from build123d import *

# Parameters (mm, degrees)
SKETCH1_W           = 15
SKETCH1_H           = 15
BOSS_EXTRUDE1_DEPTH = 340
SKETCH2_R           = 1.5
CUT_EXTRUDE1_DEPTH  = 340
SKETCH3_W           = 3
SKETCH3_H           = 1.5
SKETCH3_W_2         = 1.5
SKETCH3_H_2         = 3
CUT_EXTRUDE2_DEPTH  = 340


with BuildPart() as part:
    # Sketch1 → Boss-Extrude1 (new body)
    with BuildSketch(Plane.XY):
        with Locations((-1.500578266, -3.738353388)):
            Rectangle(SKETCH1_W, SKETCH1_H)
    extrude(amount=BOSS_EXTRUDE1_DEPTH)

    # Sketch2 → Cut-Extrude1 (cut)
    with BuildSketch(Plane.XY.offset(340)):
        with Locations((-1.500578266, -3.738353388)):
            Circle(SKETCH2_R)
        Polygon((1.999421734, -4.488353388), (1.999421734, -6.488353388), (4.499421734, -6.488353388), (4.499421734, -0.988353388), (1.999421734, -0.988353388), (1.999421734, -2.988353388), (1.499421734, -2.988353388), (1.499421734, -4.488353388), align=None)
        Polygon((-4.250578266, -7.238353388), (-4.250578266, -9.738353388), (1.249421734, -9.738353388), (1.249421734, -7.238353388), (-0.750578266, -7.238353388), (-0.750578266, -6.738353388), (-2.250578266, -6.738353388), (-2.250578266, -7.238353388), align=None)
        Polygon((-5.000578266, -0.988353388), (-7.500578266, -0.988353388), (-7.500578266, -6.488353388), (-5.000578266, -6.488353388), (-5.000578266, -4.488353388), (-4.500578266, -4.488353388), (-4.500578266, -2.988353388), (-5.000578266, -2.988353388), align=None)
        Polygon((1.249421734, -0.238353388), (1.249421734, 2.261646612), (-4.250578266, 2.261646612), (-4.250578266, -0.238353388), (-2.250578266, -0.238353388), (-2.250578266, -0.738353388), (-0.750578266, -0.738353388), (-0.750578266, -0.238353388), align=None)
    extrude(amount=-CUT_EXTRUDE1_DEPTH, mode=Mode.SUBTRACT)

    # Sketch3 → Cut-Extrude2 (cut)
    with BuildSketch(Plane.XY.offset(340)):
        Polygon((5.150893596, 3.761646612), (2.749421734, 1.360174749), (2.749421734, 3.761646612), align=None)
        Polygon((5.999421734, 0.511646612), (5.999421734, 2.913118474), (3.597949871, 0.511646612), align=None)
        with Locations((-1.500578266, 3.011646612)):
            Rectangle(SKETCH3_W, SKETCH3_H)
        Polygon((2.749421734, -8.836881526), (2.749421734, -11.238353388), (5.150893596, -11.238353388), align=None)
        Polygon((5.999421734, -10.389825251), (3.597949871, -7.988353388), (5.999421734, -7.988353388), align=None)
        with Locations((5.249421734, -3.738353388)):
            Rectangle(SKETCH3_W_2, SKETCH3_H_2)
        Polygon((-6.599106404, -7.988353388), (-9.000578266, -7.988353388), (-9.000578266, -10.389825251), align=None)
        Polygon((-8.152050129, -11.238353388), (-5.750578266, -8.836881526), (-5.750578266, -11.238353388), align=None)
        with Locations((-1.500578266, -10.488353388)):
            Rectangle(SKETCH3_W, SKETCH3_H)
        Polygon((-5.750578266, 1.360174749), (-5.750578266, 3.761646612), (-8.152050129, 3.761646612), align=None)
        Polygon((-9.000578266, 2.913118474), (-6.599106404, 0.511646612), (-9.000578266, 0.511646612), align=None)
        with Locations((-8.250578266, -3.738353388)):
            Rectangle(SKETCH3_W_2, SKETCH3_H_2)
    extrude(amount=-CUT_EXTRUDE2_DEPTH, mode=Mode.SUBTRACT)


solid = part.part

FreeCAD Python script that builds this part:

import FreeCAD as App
import Part
import Sketcher
Q = App.Units.Quantity


def add_polygon(sketch, points):
    """Adds a closed chain of lines whose ends are joined by coincident constraints."""
    first, n = sketch.GeometryCount, len(points)
    for a, b in zip(points, points[1:] + points[:1]):
        sketch.addGeometry(Part.LineSegment(App.Vector(*a, 0), App.Vector(*b, 0)), False)
    for i in range(n):
        sketch.addConstraint(Sketcher.Constraint("Coincident", first + i, 2, first + (i + 1) % n, 1))

doc = App.newDocument("Part")
params = doc.addObject("Spreadsheet::Sheet", "Params")
for row, (alias, value) in enumerate([
    ("sketch1_width", "15 mm"),
    ("pad1_length", "340 mm"),
    ("sketch2_diameter", "3 mm"),
    ("sketch2_width", "2 mm"),
    ("sketch2_width2", "2.5 mm"),
    ("sketch2_width3", "0.5 mm"),
    ("sketch2_width4", "5.5 mm"),
    ("pocket1_length", "340 mm"),
    ("sketch3_width", "3 mm"),
    ("sketch3_width2", "1.5 mm"),
    ("pocket2_length", "340 mm"),
], start=1):
    params.set(f"A{row}", alias)
    params.set(f"B{row}", "=" + value)
    params.setAlias(f"B{row}", alias)

body = doc.addObject("PartDesign::Body", "Body")

sketch1 = body.newObject("Sketcher::SketchObject", "Sketch")
sketch1.AttachmentSupport = (doc.getObject("XY_Plane"), [""])
sketch1.MapMode = "FlatFace"
add_polygon(sketch1, [(-9, 4), (-9, -11), (6, -11), (6, 4)])
sketch1.addConstraint(Sketcher.Constraint("Vertical", 0))
sketch1.addConstraint(Sketcher.Constraint("Horizontal", 1))
sketch1.addConstraint(Sketcher.Constraint("Vertical", 2))
sketch1.addConstraint(Sketcher.Constraint("Horizontal", 3))
sketch1.addConstraint(Sketcher.Constraint("Equal", 3, 0))
sketch1.addConstraint(Sketcher.Constraint("DistanceX", 1, 1, 1, 2, Q("15 mm")))
sketch1.addConstraint(Sketcher.Constraint("DistanceX", 0, 2, -1, 1, Q("9.000578 mm")))
sketch1.addConstraint(Sketcher.Constraint("DistanceY", 0, 2, -1, 1, Q("11.238353 mm")))
sketch1.setExpression("Constraints[9]", "Params.sketch1_width")
pad1 = body.newObject("PartDesign::Pad", "Pad")
pad1.Profile = sketch1
pad1.setExpression("Length", "Params.pad1_length")

sketch2 = body.newObject("Sketcher::SketchObject", "Sketch001")
sketch2.AttachmentSupport = (doc.getObject("XY_Plane"), [""])
sketch2.MapMode = "FlatFace"
sketch2.AttachmentOffset = App.Placement(App.Vector(0, 0, 340), App.Rotation())
sketch2.addGeometry(Part.Circle(App.Vector(-1.5, -3.7, 0), App.Vector(0, 0, 1), 1.5), False)
add_polygon(sketch2, [(2, -4.5), (2, -6.5), (4.5, -6.5), (4.5, -1), (2, -1), (2, -3), (1.5, -3), (1.5, -4.5)])
add_polygon(sketch2, [(-4.3, -7.2), (-4.3, -9.7), (1.2, -9.7), (1.2, -7.2), (-0.8, -7.2), (-0.8, -6.7), (-2.3, -6.7), (-2.3, -7.2)])
add_polygon(sketch2, [(-5, -1), (-7.5, -1), (-7.5, -6.5), (-5, -6.5), (-5, -4.5), (-4.5, -4.5), (-4.5, -3), (-5, -3)])
add_polygon(sketch2, [(1.2, -0.2), (1.2, 2.3), (-4.3, 2.3), (-4.3, -0.2), (-2.3, -0.2), (-2.3, -0.7), (-0.8, -0.7), (-0.8, -0.2)])
sketch2.addConstraint(Sketcher.Constraint("Vertical", 1))
sketch2.addConstraint(Sketcher.Constraint("Horizontal", 2))
sketch2.addConstraint(Sketcher.Constraint("Vertical", 3))
sketch2.addConstraint(Sketcher.Constraint("Horizontal", 4))
sketch2.addConstraint(Sketcher.Constraint("Vertical", 5))
sketch2.addConstraint(Sketcher.Constraint("Horizontal", 6))
sketch2.addConstraint(Sketcher.Constraint("Vertical", 7))
sketch2.addConstraint(Sketcher.Constraint("Horizontal", 8))
sketch2.addConstraint(Sketcher.Constraint("Vertical", 9))
sketch2.addConstraint(Sketcher.Constraint("Horizontal", 10))
sketch2.addConstraint(Sketcher.Constraint("Vertical", 11))
sketch2.addConstraint(Sketcher.Constraint("Horizontal", 12))
sketch2.addConstraint(Sketcher.Constraint("Vertical", 13))
sketch2.addConstraint(Sketcher.Constraint("Horizontal", 14))
sketch2.addConstraint(Sketcher.Constraint("Vertical", 15))
sketch2.addConstraint(Sketcher.Constraint("Horizontal", 16))
sketch2.addConstraint(Sketcher.Constraint("Horizontal", 17))
sketch2.addConstraint(Sketcher.Constraint("Vertical", 18))
sketch2.addConstraint(Sketcher.Constraint("Horizontal", 19))
sketch2.addConstraint(Sketcher.Constraint("Vertical", 20))
sketch2.addConstraint(Sketcher.Constraint("Horizontal", 21))
sketch2.addConstraint(Sketcher.Constraint("Vertical", 22))
sketch2.addConstraint(Sketcher.Constraint("Horizontal", 23))
sketch2.addConstraint(Sketcher.Constraint("Vertical", 24))
sketch2.addConstraint(Sketcher.Constraint("Vertical", 25))
sketch2.addConstraint(Sketcher.Constraint("Horizontal", 26))
sketch2.addConstraint(Sketcher.Constraint("Vertical", 27))
sketch2.addConstraint(Sketcher.Constraint("Horizontal", 28))
sketch2.addConstraint(Sketcher.Constraint("Vertical", 29))
sketch2.addConstraint(Sketcher.Constraint("Horizontal", 30))
sketch2.addConstraint(Sketcher.Constraint("Vertical", 31))
sketch2.addConstraint(Sketcher.Constraint("Horizontal", 32))
sketch2.addConstraint(Sketcher.Constraint("Horizontal", 12, 2, 15, 2))
sketch2.addConstraint(Sketcher.Constraint("Horizontal", 4, 2, 17, 2))
sketch2.addConstraint(Sketcher.Constraint("Horizontal", 2, 2, 18, 2))
sketch2.addConstraint(Sketcher.Constraint("Horizontal", 8, 2, 20, 2))
sketch2.addConstraint(Sketcher.Constraint("Horizontal", 6, 2, 22, 2))
sketch2.addConstraint(Sketcher.Constraint("Horizontal", 28, 2, 31, 2))
sketch2.addConstraint(Sketcher.Constraint("Vertical", 1, 2, 4, 2))
sketch2.addConstraint(Sketcher.Constraint("Vertical", 20, 2, 23, 2))
sketch2.addConstraint(Sketcher.Constraint("Vertical", 11, 2, 25, 2))
sketch2.addConstraint(Sketcher.Constraint("Vertical", 16, 2, 26, 2))
sketch2.addConstraint(Sketcher.Constraint("Vertical", 15, 2, 28, 2))
sketch2.addConstraint(Sketcher.Constraint("Vertical", 13, 2, 30, 2))
sketch2.addConstraint(Sketcher.Constraint("Equal", 12, 16))
sketch2.addConstraint(Sketcher.Constraint("Equal", 4, 17))
sketch2.addConstraint(Sketcher.Constraint("Equal", 8, 21))
sketch2.addConstraint(Sketcher.Constraint("Equal", 32, 1))
sketch2.addConstraint(Sketcher.Constraint("Equal", 26, 3))
sketch2.addConstraint(Sketcher.Constraint("Equal", 1, 5))
sketch2.addConstraint(Sketcher.Constraint("Equal", 19, 9))
sketch2.addConstraint(Sketcher.Constraint("Equal", 23, 13))
sketch2.addConstraint(Sketcher.Constraint("Equal", 11, 25))
sketch2.addConstraint(Sketcher.Constraint("Equal", 15, 29))
sketch2.addConstraint(Sketcher.Constraint("Diameter", 0, Q("3 mm")))
sketch2.addConstraint(Sketcher.Constraint("DistanceX", 12, 2, 12, 1, Q("2 mm")))
sketch2.addConstraint(Sketcher.Constraint("DistanceX", 2, 1, 2, 2, Q("2.5 mm")))
sketch2.addConstraint(Sketcher.Constraint("DistanceX", 6, 2, 6, 1, Q("0.5 mm")))
sketch2.addConstraint(Sketcher.Constraint("DistanceX", 10, 1, 10, 2, Q("5.5 mm")))
sketch2.addConstraint(Sketcher.Constraint("DistanceX", 0, 3, 2, 2, Q("6 mm")))
sketch2.addConstraint(Sketcher.Constraint("DistanceY", 9, 2, 0, 3, Q("6 mm")))
sketch2.addConstraint(Sketcher.Constraint("DistanceX", 17, 2, 0, 3, Q("6 mm")))
sketch2.addConstraint(Sketcher.Constraint("DistanceY", 0, 3, 25, 2, Q("6 mm")))
sketch2.addConstraint(Sketcher.Constraint("DistanceY", 1, 2, 0, 3, Q("2.75 mm")))
sketch2.addConstraint(Sketcher.Constraint("DistanceX", 9, 2, 0, 3, Q("2.75 mm")))
sketch2.addConstraint(Sketcher.Constraint("DistanceX", 0, 3, -1, 1, Q("1.500578 mm")))
sketch2.addConstraint(Sketcher.Constraint("DistanceY", 0, 3, -1, 1, Q("3.738353 mm")))
sketch2.setExpression("Constraints[86]", "Params.sketch2_diameter")
sketch2.setExpression("Constraints[87]", "Params.sketch2_width")
sketch2.setExpression("Constraints[88]", "Params.sketch2_width2")
sketch2.setExpression("Constraints[89]", "Params.sketch2_width3")
sketch2.setExpression("Constraints[90]", "Params.sketch2_width4")
pocket1 = body.newObject("PartDesign::Pocket", "Pocket")
pocket1.Profile = sketch2
pocket1.setExpression("Length", "Params.pocket1_length")

sketch3 = body.newObject("Sketcher::SketchObject", "Sketch002")
sketch3.AttachmentSupport = (doc.getObject("XY_Plane"), [""])
sketch3.MapMode = "FlatFace"
sketch3.AttachmentOffset = App.Placement(App.Vector(0, 0, 340), App.Rotation())
add_polygon(sketch3, [(2.7, 1.4), (5.2, 3.8), (2.7, 3.8)])
add_polygon(sketch3, [(6, 0.5), (6, 2.9), (3.6, 0.5)])
add_polygon(sketch3, [(-3, 3.8), (-3, 2.3), (0, 2.3), (0, 3.8)])
add_polygon(sketch3, [(2.7, -8.8), (2.7, -11.2), (5.2, -11.2)])
add_polygon(sketch3, [(3.6, -8), (6, -10.4), (6, -8)])
add_polygon(sketch3, [(4.5, -2.2), (4.5, -5.2), (6, -5.2), (6, -2.2)])
add_polygon(sketch3, [(-6.6, -8), (-9, -8), (-9, -10.4)])
add_polygon(sketch3, [(-5.8, -8.8), (-8.2, -11.2), (-5.8, -11.2)])
add_polygon(sketch3, [(-3, -9.7), (-3, -11.2), (0, -11.2), (0, -9.7)])
add_polygon(sketch3, [(-5.8, 1.4), (-5.8, 3.8), (-8.2, 3.8)])
add_polygon(sketch3, [(-6.6, 0.5), (-9, 2.9), (-9, 0.5)])
add_polygon(sketch3, [(-9, -2.2), (-9, -5.2), (-7.5, -5.2), (-7.5, -2.2)])
sketch3.addConstraint(Sketcher.Constraint("Horizontal", 1))
sketch3.addConstraint(Sketcher.Constraint("Vertical", 2))
sketch3.addConstraint(Sketcher.Constraint("Vertical", 3))
sketch3.addConstraint(Sketcher.Constraint("Horizontal", 5))
sketch3.addConstraint(Sketcher.Constraint("Vertical", 6))
sketch3.addConstraint(Sketcher.Constraint("Horizontal", 7))
sketch3.addConstraint(Sketcher.Constraint("Vertical", 8))
sketch3.addConstraint(Sketcher.Constraint("Horizontal", 9))
sketch3.addConstraint(Sketcher.Constraint("Vertical", 10))
sketch3.addConstraint(Sketcher.Constraint("Horizontal", 11))
sketch3.addConstraint(Sketcher.Constraint("Vertical", 14))
sketch3.addConstraint(Sketcher.Constraint("Horizontal", 15))
sketch3.addConstraint(Sketcher.Constraint("Vertical", 16))
sketch3.addConstraint(Sketcher.Constraint("Horizontal", 17))
sketch3.addConstraint(Sketcher.Constraint("Vertical", 18))
sketch3.addConstraint(Sketcher.Constraint("Horizontal", 19))
sketch3.addConstraint(Sketcher.Constraint("Horizontal", 20))
sketch3.addConstraint(Sketcher.Constraint("Vertical", 21))
sketch3.addConstraint(Sketcher.Constraint("Horizontal", 24))
sketch3.addConstraint(Sketcher.Constraint("Vertical", 25))
sketch3.addConstraint(Sketcher.Constraint("Vertical", 26))
sketch3.addConstraint(Sketcher.Constraint("Horizontal", 27))
sketch3.addConstraint(Sketcher.Constraint("Vertical", 28))
sketch3.addConstraint(Sketcher.Constraint("Horizontal", 29))
sketch3.addConstraint(Sketcher.Constraint("Vertical", 30))
sketch3.addConstraint(Sketcher.Constraint("Horizontal", 31))
sketch3.addConstraint(Sketcher.Constraint("Vertical", 34))
sketch3.addConstraint(Sketcher.Constraint("Horizontal", 35))
sketch3.addConstraint(Sketcher.Constraint("Vertical", 36))
sketch3.addConstraint(Sketcher.Constraint("Horizontal", 37))
sketch3.addConstraint(Sketcher.Constraint("Vertical", 38))
sketch3.addConstraint(Sketcher.Constraint("Horizontal", 39))
sketch3.addConstraint(Sketcher.Constraint("Parallel", 0, 4))
sketch3.addConstraint(Sketcher.Constraint("Perpendicular", 4, 12))
sketch3.addConstraint(Sketcher.Constraint("Parallel", 12, 13))
sketch3.addConstraint(Sketcher.Constraint("Perpendicular", 13, 22))
sketch3.addConstraint(Sketcher.Constraint("Parallel", 22, 23))
sketch3.addConstraint(Sketcher.Constraint("Perpendicular", 23, 32))
sketch3.addConstraint(Sketcher.Constraint("Parallel", 32, 33))
sketch3.addConstraint(Sketcher.Constraint("Horizontal", 1, 2, 8, 2))
sketch3.addConstraint(Sketcher.Constraint("Horizontal", 15, 2, 20, 2))
sketch3.addConstraint(Sketcher.Constraint("Horizontal", 13, 2, 21, 2))
sketch3.addConstraint(Sketcher.Constraint("Horizontal", 11, 2, 23, 2))
sketch3.addConstraint(Sketcher.Constraint("Horizontal", 12, 2, 25, 2))
sketch3.addConstraint(Sketcher.Constraint("Horizontal", 24, 2, 26, 2))
sketch3.addConstraint(Sketcher.Constraint("Horizontal", 9, 2, 30, 2))
sketch3.addConstraint(Sketcher.Constraint("Horizontal", 2, 2, 32, 2))
sketch3.addConstraint(Sketcher.Constraint("Horizontal", 3, 2, 33, 2))
sketch3.addConstraint(Sketcher.Constraint("Horizontal", 5, 2, 34, 2))
sketch3.addConstraint(Sketcher.Constraint("Horizontal", 17, 2, 36, 2))
sketch3.addConstraint(Sketcher.Constraint("Horizontal", 19, 2, 38, 2))
sketch3.addConstraint(Sketcher.Constraint("Vertical", 2, 2, 10, 2))
sketch3.addConstraint(Sketcher.Constraint("Vertical", 0, 2, 11, 2))
sketch3.addConstraint(Sketcher.Constraint("Vertical", 5, 2, 13, 2))
sketch3.addConstraint(Sketcher.Constraint("Vertical", 4, 2, 15, 2))
sketch3.addConstraint(Sketcher.Constraint("Vertical", 14, 2, 17, 2))
sketch3.addConstraint(Sketcher.Constraint("Vertical", 9, 2, 26, 2))
sketch3.addConstraint(Sketcher.Constraint("Vertical", 8, 2, 27, 2))
sketch3.addConstraint(Sketcher.Constraint("Vertical", 25, 2, 30, 2))
sketch3.addConstraint(Sketcher.Constraint("Vertical", 23, 2, 31, 2))
sketch3.addConstraint(Sketcher.Constraint("Vertical", 21, 2, 33, 2))
sketch3.addConstraint(Sketcher.Constraint("Vertical", 34, 2, 36, 2))
sketch3.addConstraint(Sketcher.Constraint("Equal", 1, 5))
sketch3.addConstraint(Sketcher.Constraint("Equal", 19, 37))
sketch3.addConstraint(Sketcher.Constraint("Equal", 39, 6))
sketch3.addConstraint(Sketcher.Constraint("Equal", 29, 16))
sketch3.addConstraint(Sketcher.Constraint("Equal", 8, 26))
sketch3.addConstraint(Sketcher.Constraint("DistanceX", 7, 1, 7, 2, Q("3 mm")))
sketch3.addConstraint(Sketcher.Constraint("DistanceX", 17, 1, 17, 2, Q("1.5 mm")))
sketch3.addConstraint(Sketcher.Constraint("DistanceX", 6, 2, 3, 2, Q("9 mm")))
sketch3.addConstraint(Sketcher.Constraint("DistanceX", 20, 2, 6, 2, Q("6 mm")))
sketch3.addConstraint(Sketcher.Constraint("DistanceY", 10, 2, 7, 2, Q("13.5 mm")))
sketch3.addConstraint(Sketcher.Constraint("DistanceY", 14, 2, 5, 2, Q("8.5 mm")))
sketch3.addConstraint(Sketcher.Constraint("DistanceX", 24, 2, 10, 2, Q("8.5 mm")))
sketch3.addConstraint(Sketcher.Constraint("DistanceX", 1, 2, 3, 2, Q("3.25 mm")))
sketch3.addConstraint(Sketcher.Constraint("DistanceY", 4, 2, 1, 2, Q("3.25 mm")))
sketch3.addConstraint(Sketcher.Constraint("DistanceY", 15, 2, 16, 2, Q("2.75 mm")))
sketch3.addConstraint(Sketcher.Constraint("DistanceX", 1, 2, 1, 1, Q("2.401472 mm")))
sketch3.addConstraint(Sketcher.Constraint("DistanceX", -1, 1, 1, 2, Q("2.749422 mm")))
sketch3.addConstraint(Sketcher.Constraint("DistanceY", -1, 1, 3, 2, Q("2.913118 mm")))
sketch3.setExpression("Constraints[107]", "Params.sketch3_width")
sketch3.setExpression("Constraints[108]", "Params.sketch3_width2")
pocket2 = body.newObject("PartDesign::Pocket", "Pocket001")
pocket2.Profile = sketch3
pocket2.setExpression("Length", "Params.pocket2_length")

doc.recompute()
